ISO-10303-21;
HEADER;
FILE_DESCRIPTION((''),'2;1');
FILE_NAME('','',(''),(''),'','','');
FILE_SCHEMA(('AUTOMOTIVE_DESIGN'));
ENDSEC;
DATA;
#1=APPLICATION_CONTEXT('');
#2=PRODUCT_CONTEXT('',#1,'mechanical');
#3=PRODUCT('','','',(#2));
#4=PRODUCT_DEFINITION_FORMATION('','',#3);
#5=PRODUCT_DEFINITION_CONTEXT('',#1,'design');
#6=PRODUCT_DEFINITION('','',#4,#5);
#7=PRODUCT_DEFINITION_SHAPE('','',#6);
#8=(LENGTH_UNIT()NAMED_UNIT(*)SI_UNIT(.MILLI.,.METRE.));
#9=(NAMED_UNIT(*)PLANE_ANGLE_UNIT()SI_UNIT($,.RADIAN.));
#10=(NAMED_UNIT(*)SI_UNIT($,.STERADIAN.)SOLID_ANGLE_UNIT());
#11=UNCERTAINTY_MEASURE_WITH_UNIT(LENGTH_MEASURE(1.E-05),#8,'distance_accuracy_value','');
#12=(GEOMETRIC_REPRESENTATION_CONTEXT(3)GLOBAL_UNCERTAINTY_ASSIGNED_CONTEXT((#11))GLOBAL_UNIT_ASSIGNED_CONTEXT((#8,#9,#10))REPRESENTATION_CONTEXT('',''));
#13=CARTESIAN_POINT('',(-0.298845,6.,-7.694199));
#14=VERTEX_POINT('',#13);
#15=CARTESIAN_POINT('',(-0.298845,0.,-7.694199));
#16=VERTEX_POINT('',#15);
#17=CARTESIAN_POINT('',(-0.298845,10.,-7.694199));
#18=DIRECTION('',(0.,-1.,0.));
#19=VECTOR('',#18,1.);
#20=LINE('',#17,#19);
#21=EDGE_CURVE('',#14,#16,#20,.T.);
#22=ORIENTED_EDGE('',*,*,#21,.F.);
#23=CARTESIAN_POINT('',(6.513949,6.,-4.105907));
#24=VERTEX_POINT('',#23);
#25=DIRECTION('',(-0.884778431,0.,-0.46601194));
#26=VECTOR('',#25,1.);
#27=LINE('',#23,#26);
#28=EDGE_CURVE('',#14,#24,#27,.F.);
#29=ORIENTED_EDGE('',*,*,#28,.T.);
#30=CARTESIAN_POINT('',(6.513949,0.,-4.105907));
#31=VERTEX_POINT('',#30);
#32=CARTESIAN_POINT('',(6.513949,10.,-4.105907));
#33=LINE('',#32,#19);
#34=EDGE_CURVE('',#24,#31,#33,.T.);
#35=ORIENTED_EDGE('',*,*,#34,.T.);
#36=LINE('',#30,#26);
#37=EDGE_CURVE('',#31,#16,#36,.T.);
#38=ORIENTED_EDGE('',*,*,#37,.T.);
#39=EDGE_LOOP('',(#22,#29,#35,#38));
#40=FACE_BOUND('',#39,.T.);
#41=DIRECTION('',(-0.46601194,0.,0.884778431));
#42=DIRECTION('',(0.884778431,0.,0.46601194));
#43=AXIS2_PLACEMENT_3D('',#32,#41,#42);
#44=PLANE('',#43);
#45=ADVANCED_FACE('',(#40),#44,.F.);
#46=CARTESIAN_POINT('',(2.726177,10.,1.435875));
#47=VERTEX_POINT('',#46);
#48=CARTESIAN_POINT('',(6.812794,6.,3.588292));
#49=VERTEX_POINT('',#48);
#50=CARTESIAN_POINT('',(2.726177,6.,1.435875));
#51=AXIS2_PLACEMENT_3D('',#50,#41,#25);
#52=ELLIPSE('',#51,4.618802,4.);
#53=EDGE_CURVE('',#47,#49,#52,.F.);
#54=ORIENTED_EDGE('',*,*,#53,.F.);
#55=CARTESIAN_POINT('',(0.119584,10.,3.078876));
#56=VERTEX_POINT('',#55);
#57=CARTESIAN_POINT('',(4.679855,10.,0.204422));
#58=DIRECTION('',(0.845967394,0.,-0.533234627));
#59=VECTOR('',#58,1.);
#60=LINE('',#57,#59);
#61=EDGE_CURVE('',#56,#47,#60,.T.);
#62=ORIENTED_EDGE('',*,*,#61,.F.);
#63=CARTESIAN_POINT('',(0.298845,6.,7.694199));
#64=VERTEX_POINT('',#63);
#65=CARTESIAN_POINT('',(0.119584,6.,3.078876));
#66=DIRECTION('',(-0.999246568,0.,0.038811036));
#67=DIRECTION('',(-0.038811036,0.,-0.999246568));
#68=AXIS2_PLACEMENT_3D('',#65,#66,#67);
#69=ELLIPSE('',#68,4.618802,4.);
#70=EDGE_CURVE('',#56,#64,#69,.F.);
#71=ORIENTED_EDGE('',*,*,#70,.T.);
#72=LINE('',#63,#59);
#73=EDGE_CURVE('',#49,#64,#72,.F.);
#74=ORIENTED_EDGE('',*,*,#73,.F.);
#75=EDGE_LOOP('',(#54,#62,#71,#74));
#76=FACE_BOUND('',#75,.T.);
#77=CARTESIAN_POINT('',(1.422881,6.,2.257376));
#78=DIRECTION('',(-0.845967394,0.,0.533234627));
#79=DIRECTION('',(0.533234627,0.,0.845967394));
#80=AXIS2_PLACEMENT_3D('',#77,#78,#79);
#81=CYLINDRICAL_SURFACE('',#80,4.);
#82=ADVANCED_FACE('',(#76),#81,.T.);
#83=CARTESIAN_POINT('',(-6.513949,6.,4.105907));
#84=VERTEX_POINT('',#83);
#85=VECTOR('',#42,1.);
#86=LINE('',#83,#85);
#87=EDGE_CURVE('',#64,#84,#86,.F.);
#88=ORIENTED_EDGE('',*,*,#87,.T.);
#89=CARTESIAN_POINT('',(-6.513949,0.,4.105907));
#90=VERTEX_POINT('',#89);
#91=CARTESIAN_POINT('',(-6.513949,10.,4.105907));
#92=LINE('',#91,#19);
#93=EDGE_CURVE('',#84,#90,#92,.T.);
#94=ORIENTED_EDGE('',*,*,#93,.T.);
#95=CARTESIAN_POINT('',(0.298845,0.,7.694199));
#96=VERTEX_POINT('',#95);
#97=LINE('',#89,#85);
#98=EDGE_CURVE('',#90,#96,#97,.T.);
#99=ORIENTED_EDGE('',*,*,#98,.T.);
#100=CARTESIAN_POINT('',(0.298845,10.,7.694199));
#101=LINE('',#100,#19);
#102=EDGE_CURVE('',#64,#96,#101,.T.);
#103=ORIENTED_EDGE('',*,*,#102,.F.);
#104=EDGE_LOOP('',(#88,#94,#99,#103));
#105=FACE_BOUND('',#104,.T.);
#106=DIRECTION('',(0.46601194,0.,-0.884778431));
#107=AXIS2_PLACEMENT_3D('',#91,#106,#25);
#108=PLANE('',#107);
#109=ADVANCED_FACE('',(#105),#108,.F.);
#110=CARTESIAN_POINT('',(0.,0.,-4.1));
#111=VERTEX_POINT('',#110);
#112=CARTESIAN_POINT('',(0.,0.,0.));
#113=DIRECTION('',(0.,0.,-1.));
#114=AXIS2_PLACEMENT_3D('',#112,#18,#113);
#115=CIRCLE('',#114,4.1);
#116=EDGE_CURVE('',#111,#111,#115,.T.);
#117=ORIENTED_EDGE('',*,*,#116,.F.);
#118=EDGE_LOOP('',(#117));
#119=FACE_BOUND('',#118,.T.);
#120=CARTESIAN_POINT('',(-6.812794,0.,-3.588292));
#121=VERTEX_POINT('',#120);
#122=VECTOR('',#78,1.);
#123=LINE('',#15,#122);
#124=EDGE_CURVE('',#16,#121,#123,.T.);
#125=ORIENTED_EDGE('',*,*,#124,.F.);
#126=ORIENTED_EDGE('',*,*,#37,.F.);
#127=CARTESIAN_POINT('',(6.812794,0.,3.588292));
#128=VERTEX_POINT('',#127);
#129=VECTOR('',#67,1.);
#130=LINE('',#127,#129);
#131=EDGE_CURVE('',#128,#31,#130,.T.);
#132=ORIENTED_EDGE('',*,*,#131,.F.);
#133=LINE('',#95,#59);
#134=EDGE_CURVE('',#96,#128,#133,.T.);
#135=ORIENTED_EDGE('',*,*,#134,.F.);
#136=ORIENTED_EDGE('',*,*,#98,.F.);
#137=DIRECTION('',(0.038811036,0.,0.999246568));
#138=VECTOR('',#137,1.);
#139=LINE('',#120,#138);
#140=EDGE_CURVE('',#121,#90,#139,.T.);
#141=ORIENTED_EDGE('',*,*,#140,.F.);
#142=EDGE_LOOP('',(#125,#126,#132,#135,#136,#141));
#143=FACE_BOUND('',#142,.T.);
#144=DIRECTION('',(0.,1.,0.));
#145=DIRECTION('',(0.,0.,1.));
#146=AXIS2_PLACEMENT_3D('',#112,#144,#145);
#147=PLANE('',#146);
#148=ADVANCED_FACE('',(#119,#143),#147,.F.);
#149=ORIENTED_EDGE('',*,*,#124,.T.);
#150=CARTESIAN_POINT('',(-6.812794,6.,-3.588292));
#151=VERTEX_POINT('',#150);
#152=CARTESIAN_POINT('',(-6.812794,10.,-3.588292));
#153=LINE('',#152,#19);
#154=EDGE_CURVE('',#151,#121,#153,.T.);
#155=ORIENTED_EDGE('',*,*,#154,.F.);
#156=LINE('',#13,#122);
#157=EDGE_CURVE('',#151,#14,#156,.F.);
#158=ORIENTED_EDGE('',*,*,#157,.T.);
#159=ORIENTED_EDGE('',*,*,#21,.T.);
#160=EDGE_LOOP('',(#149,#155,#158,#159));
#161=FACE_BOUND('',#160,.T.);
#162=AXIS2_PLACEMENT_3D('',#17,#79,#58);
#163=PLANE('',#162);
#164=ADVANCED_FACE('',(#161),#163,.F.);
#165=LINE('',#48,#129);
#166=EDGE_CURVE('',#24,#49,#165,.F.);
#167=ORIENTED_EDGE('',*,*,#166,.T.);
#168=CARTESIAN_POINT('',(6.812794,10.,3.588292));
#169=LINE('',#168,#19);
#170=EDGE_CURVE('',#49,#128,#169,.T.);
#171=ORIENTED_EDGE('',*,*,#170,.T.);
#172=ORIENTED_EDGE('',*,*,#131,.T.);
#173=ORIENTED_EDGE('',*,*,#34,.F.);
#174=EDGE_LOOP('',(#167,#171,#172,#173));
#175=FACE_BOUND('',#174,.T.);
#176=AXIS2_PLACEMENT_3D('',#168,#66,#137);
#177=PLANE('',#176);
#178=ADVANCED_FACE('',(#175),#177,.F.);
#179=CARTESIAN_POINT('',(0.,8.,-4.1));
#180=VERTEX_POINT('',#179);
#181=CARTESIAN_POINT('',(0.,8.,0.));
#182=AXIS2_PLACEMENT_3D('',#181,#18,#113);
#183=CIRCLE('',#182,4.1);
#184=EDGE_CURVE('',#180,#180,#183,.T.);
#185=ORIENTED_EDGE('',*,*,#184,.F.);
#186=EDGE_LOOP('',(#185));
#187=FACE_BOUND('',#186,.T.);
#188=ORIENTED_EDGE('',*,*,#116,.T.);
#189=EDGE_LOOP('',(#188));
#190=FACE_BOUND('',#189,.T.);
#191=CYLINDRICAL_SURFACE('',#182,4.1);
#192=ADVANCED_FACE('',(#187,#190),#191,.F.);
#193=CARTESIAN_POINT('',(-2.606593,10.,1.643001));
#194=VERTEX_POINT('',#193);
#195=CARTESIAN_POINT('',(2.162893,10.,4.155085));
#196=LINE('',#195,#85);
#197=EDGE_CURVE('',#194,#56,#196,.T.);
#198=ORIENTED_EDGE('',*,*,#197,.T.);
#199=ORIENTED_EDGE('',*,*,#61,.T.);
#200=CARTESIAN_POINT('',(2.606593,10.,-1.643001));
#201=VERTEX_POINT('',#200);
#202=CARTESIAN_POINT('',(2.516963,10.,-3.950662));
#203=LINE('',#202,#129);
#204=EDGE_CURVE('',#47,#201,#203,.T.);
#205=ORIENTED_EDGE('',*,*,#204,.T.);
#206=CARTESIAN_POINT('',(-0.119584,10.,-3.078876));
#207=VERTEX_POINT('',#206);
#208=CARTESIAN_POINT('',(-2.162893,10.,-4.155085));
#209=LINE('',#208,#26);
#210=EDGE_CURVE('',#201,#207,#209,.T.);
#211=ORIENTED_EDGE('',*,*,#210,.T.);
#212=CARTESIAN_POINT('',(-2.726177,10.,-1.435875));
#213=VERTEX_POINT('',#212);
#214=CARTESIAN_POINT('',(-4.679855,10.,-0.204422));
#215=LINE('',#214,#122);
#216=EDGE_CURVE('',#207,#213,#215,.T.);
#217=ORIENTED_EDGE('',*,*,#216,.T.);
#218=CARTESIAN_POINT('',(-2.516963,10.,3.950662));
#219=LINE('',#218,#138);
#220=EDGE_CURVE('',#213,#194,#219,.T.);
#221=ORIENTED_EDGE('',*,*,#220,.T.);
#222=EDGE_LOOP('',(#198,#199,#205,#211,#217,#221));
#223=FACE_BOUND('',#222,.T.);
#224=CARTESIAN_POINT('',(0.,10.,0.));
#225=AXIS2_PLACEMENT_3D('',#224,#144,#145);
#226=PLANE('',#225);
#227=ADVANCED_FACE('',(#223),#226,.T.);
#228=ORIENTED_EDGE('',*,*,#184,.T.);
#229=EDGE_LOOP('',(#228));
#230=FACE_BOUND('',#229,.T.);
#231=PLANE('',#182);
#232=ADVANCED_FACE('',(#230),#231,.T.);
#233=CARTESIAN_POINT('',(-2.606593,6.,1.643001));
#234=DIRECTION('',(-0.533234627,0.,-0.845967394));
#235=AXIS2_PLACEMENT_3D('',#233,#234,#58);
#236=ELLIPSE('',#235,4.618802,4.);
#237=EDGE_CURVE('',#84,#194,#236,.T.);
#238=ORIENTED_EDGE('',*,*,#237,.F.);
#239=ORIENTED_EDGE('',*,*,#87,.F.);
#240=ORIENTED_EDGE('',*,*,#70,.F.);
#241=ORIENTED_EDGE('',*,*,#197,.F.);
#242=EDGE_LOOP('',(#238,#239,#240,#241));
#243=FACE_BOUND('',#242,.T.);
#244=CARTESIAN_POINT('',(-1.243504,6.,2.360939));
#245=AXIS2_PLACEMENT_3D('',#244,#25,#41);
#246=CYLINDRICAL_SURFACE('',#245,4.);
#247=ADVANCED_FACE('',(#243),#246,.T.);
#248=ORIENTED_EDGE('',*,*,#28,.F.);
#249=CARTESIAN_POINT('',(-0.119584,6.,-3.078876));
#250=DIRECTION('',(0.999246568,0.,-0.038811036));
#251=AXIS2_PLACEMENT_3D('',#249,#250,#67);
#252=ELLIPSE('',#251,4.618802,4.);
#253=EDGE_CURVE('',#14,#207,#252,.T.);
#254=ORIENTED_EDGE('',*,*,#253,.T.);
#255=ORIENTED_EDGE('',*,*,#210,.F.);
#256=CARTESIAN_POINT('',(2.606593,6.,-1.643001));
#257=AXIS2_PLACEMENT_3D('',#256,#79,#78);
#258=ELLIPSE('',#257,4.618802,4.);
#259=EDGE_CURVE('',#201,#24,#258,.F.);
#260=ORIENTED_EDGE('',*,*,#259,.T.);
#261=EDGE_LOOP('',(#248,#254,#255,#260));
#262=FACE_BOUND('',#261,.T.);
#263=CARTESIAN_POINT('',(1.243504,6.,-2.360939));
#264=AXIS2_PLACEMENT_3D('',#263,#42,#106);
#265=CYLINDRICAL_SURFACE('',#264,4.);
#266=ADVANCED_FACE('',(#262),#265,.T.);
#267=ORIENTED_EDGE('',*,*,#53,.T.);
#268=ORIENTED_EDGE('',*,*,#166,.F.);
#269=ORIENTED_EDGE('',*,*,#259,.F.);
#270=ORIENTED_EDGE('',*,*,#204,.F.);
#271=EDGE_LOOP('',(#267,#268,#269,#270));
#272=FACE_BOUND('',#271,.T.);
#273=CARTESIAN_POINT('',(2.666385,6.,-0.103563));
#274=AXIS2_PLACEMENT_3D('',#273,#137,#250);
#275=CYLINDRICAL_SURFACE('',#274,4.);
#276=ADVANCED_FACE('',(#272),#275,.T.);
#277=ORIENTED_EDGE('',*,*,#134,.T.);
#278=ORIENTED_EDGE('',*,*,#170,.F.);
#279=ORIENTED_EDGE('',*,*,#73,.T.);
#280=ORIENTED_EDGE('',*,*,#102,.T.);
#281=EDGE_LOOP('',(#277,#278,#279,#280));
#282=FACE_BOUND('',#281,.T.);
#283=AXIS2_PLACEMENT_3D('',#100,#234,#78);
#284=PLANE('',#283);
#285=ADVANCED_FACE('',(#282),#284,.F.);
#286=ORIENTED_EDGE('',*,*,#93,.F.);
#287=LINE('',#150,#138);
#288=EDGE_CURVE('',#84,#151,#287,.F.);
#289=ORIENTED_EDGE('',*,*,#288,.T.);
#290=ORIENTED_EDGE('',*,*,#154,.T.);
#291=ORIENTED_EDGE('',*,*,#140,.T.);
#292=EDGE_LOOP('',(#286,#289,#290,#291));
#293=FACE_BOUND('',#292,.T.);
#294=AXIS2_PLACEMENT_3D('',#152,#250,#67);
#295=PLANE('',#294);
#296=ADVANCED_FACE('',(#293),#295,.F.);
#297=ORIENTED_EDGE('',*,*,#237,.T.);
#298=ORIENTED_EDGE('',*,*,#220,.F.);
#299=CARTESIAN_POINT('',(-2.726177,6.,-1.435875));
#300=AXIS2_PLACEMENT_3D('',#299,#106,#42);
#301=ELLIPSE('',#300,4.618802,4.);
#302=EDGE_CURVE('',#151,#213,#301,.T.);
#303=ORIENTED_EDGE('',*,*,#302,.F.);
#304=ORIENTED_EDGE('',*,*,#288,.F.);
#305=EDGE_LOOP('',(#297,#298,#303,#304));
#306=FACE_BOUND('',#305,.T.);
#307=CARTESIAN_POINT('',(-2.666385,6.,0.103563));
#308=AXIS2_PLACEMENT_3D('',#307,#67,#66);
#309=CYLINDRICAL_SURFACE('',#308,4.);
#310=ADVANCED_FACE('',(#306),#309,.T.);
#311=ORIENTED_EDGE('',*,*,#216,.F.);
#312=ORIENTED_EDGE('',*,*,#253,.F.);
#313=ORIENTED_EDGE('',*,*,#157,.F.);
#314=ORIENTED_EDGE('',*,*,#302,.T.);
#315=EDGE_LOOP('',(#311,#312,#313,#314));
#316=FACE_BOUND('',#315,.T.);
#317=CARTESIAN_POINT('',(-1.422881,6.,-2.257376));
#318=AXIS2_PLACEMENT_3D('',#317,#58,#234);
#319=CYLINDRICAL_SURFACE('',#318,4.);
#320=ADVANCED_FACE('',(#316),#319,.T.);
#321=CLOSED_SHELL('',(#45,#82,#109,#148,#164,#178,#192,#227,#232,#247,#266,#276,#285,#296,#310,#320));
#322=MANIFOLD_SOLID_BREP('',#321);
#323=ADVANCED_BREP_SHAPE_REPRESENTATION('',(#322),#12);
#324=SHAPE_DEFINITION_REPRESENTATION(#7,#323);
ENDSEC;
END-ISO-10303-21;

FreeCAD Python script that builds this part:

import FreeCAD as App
import Part
import Sketcher
from FreeCAD import Vector


def edges_at(feature, points):
    """Names of the edges that pass closest to the given points."""
    edges = feature.Shape.Edges
    near = lambda p: min(range(len(edges)), key=lambda i: edges[i].distToShape(Part.Vertex(*p))[0])
    return sorted({f"Edge{near(p) + 1}" for p in points})


def add_polygon(sketch, points):
    """Adds a closed chain of lines whose ends are joined by coincident constraints."""
    first, n = sketch.GeometryCount, len(points)
    for a, b in zip(points, points[1:] + points[:1]):
        sketch.addGeometry(Part.LineSegment(App.Vector(*a, 0), App.Vector(*b, 0)), False)
    for i in range(n):
        sketch.addConstraint(Sketcher.Constraint("Coincident", first + i, 2, first + (i + 1) % n, 1))

doc = App.newDocument("Part")
body = doc.addObject("PartDesign::Body", "Body")

# Sketch on XZ plane
sketch1 = body.newObject("Sketcher::SketchObject", "Sketch")
sketch1.AttachmentSupport = (doc.getObject("XZ_Plane"), [""])
sketch1.MapMode = "FlatFace"
add_polygon(sketch1, [(-6.812794, -3.588292), (-6.513949, 4.105907), (0.298845, 7.694199), (6.812794, 3.588292), (6.513949, -4.105907), (-0.298845, -7.694199)])  # lines 0-5
sketch1.addConstraint([
    Sketcher.Constraint("Distance", 0, 7.7),
    Sketcher.Constraint("Distance", 1, 7.7),
    Sketcher.Constraint("Distance", 2, 7.7),
    Sketcher.Constraint("Distance", 3, 7.7),
    Sketcher.Constraint("Distance", 4, 7.7),
    Sketcher.Constraint("Distance", 5, 7.7),
    Sketcher.Constraint("DistanceY", -1, 1, 1, 2, 7.694199),
    Sketcher.Constraint("DistanceY", 4, 2, -1, 1, 7.694199),
    Sketcher.Constraint("DistanceY", 3, 2, 2, 2, 7.694199),
    Sketcher.Constraint("DistanceY", 5, 2, 0, 2, 7.694199),
    Sketcher.Constraint("DistanceX", 0, 2, -1, 1, 6.513949),
    Sketcher.Constraint("DistanceY", -1, 1, 2, 2, 3.588292),
])
pad1 = body.newObject("PartDesign::Pad", "Pad")
pad1.Profile = sketch1
pad1.Length = 10
pad1.Reversed = True
doc.recompute()

fillet = body.newObject("PartDesign::Fillet", "Fillet")
fillet.Base = (pad1, edges_at(pad1, [
    (-3.108, 10, 5.9),
    (3.556, 10, 5.641),
    (6.663, 10, -0.259),
    (3.108, 10, -5.9),
    (-3.556, 10, -5.641),
    (-6.663, 10, 0.259),
]))
fillet.Radius = 4

# Sketch on XZ plane
sketch2 = body.newObject("Sketcher::SketchObject", "Sketch001")
sketch2.AttachmentSupport = (doc.getObject("XZ_Plane"), [""])
sketch2.MapMode = "FlatFace"
sketch2.addGeometry(Part.Circle(Vector(0, 0, 0), Vector(0, 0, 1), 4.1), False)
sketch2.addConstraint([
    Sketcher.Constraint("Coincident", 0, 3, -1, 1),
    Sketcher.Constraint("Diameter", 0, 8.2),
])
pocket1 = body.newObject("PartDesign::Pocket", "Pocket")
pocket1.Profile = sketch2
pocket1.Length = 8

doc.recompute()
